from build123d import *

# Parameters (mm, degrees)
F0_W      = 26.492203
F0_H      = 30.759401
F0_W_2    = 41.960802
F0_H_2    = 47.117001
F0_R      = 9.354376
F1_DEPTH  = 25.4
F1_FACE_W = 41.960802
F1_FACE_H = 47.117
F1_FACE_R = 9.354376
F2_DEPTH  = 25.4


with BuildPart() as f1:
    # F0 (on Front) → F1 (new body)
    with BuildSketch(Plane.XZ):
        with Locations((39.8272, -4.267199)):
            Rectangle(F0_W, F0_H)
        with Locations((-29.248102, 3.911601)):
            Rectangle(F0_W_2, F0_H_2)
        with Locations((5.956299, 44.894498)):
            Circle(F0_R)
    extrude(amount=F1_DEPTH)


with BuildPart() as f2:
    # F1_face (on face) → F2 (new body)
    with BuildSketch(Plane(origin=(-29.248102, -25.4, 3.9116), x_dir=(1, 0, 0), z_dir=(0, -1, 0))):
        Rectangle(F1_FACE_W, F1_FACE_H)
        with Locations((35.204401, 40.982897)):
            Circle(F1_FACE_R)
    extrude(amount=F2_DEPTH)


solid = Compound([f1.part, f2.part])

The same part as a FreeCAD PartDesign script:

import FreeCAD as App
import Part
import Sketcher
from FreeCAD import Vector
Q = App.Units.Quantity

doc = App.newDocument("Part")
body = doc.addObject("PartDesign::Body", "Body")
body.AllowCompound = True

sketch1 = doc.addObject("Sketcher::SketchObject", "Sketch")
body.addObject(sketch1)
sketch1.AttachmentSupport = (doc.XZ_Plane, [""])
sketch1.MapMode = "FlatFace"
sketch1.addGeometry(Part.LineSegment(Vector(27, 11, 0), Vector(27, -20, 0)), False)
sketch1.addGeometry(Part.LineSegment(Vector(27, -20, 0), Vector(53, -20, 0)), False)
sketch1.addGeometry(Part.LineSegment(Vector(53, -20, 0), Vector(53, 11, 0)), False)
sketch1.addGeometry(Part.LineSegment(Vector(53, 11, 0), Vector(27, 11, 0)), False)
sketch1.addGeometry(Part.LineSegment(Vector(-50, 27, 0), Vector(-50, -20, 0)), False)
sketch1.addGeometry(Part.LineSegment(Vector(-50, -20, 0), Vector(-8, -20, 0)), False)
sketch1.addGeometry(Part.LineSegment(Vector(-8, -20, 0), Vector(-8, 27, 0)), False)
sketch1.addGeometry(Part.LineSegment(Vector(-8, 27, 0), Vector(-50, 27, 0)), False)
sketch1.addGeometry(Part.Circle(Vector(6, 45, 0), Vector(0, 0, 1), 9), False)
sketch1.addConstraint(Sketcher.Constraint("Coincident", 0, 2, 1, 1))
sketch1.addConstraint(Sketcher.Constraint("Coincident", 1, 2, 2, 1))
sketch1.addConstraint(Sketcher.Constraint("Coincident", 2, 2, 3, 1))
sketch1.addConstraint(Sketcher.Constraint("Coincident", 3, 2, 0, 1))
sketch1.addConstraint(Sketcher.Constraint("Coincident", 4, 2, 5, 1))
sketch1.addConstraint(Sketcher.Constraint("Coincident", 5, 2, 6, 1))
sketch1.addConstraint(Sketcher.Constraint("Coincident", 6, 2, 7, 1))
sketch1.addConstraint(Sketcher.Constraint("Coincident", 7, 2, 4, 1))
sketch1.addConstraint(Sketcher.Constraint("Vertical", 0))
sketch1.addConstraint(Sketcher.Constraint("Horizontal", 1))
sketch1.addConstraint(Sketcher.Constraint("Vertical", 2))
sketch1.addConstraint(Sketcher.Constraint("Horizontal", 3))
sketch1.addConstraint(Sketcher.Constraint("Vertical", 4))
sketch1.addConstraint(Sketcher.Constraint("Horizontal", 5))
sketch1.addConstraint(Sketcher.Constraint("Vertical", 6))
sketch1.addConstraint(Sketcher.Constraint("Horizontal", 7))
sketch1.addConstraint(Sketcher.Constraint("Horizontal", 1, 2, 4, 2))
sketch1.addConstraint(Sketcher.Constraint("DistanceX", 1, 1, 1, 2, Q("1.0430001 in")))
sketch1.addConstraint(Sketcher.Constraint("DistanceX", 5, 1, 5, 2, Q("1.6520001 in")))
sketch1.addConstraint(Sketcher.Constraint("DistanceY", 0, 2, 0, 1, Q("1.211 in")))
sketch1.addConstraint(Sketcher.Constraint("DistanceY", 4, 2, 4, 1, Q("1.855 in")))
sketch1.addConstraint(Sketcher.Constraint("DistanceY", 2, 2, 8, 3, Q("1.3299999 in")))
sketch1.addConstraint(Sketcher.Constraint("DistanceX", 5, 2, 8, 3, Q("0.56 in")))
sketch1.addConstraint(Sketcher.Constraint("DistanceY", -1, 1, 2, 2, Q("0.4375001 in")))
sketch1.addConstraint(Sketcher.Constraint("DistanceX", 8, 3, 0, 2, Q("0.812 in")))
sketch1.addConstraint(Sketcher.Constraint("Diameter", 8, 18.708752))
sketch1.addConstraint(Sketcher.Constraint("DistanceX", -1, 1, 8, 3, Q("0.2345 in")))
pad1 = doc.addObject("PartDesign::Pad", "Pad")
body.addObject(pad1)
pad1.Profile = sketch1
pad1.Length = Q("1 in")
body2 = doc.addObject("PartDesign::Body", "Body001")
body2.AllowCompound = True

sketch2 = doc.addObject("Sketcher::SketchObject", "Sketch001")
body2.addObject(sketch2)
sketch2.AttachmentSupport = (doc.getObject("XZ_Plane001"), [""])
sketch2.MapMode = "FlatFace"
sketch2.AttachmentOffset = App.Placement(Vector(0, 0, 1 * 25.4), App.Rotation())
sketch2.addGeometry(Part.LineSegment(Vector(-50, 27, 0), Vector(-50, -20, 0)), False)
sketch2.addGeometry(Part.LineSegment(Vector(-50, -20, 0), Vector(-8, -20, 0)), False)
sketch2.addGeometry(Part.LineSegment(Vector(-8, -20, 0), Vector(-8, 27, 0)), False)
sketch2.addGeometry(Part.LineSegment(Vector(-8, 27, 0), Vector(-50, 27, 0)), False)
sketch2.addGeometry(Part.Circle(Vector(6, 45, 0), Vector(0, 0, 1), 9), False)
sketch2.addConstraint(Sketcher.Constraint("Coincident", 0, 2, 1, 1))
sketch2.addConstraint(Sketcher.Constraint("Coincident", 1, 2, 2, 1))
sketch2.addConstraint(Sketcher.Constraint("Coincident", 2, 2, 3, 1))
sketch2.addConstraint(Sketcher.Constraint("Coincident", 3, 2, 0, 1))
sketch2.addConstraint(Sketcher.Constraint("Vertical", 0))
sketch2.addConstraint(Sketcher.Constraint("Horizontal", 1))
sketch2.addConstraint(Sketcher.Constraint("Vertical", 2))
sketch2.addConstraint(Sketcher.Constraint("Horizontal", 3))
sketch2.addConstraint(Sketcher.Constraint("DistanceX", 1, 1, 1, 2, Q("1.6520001 in")))
sketch2.addConstraint(Sketcher.Constraint("DistanceY", 0, 2, 0, 1, Q("1.855 in")))
sketch2.addConstraint(Sketcher.Constraint("DistanceX", 1, 2, 4, 3, Q("0.56 in")))
sketch2.addConstraint(Sketcher.Constraint("DistanceY", 0, 2, 4, 3, Q("2.5409999 in")))
sketch2.addConstraint(Sketcher.Constraint("Diameter", 4, 18.708752))
sketch2.addConstraint(Sketcher.Constraint("DistanceX", -1, 1, 4, 3, Q("0.2345 in")))
sketch2.addConstraint(Sketcher.Constraint("DistanceY", -1, 1, 4, 3, Q("1.7674999 in")))
pad2 = doc.addObject("PartDesign::Pad", "Pad001")
body2.addObject(pad2)
pad2.Profile = sketch2
pad2.Length = Q("1 in")

doc.recompute()
